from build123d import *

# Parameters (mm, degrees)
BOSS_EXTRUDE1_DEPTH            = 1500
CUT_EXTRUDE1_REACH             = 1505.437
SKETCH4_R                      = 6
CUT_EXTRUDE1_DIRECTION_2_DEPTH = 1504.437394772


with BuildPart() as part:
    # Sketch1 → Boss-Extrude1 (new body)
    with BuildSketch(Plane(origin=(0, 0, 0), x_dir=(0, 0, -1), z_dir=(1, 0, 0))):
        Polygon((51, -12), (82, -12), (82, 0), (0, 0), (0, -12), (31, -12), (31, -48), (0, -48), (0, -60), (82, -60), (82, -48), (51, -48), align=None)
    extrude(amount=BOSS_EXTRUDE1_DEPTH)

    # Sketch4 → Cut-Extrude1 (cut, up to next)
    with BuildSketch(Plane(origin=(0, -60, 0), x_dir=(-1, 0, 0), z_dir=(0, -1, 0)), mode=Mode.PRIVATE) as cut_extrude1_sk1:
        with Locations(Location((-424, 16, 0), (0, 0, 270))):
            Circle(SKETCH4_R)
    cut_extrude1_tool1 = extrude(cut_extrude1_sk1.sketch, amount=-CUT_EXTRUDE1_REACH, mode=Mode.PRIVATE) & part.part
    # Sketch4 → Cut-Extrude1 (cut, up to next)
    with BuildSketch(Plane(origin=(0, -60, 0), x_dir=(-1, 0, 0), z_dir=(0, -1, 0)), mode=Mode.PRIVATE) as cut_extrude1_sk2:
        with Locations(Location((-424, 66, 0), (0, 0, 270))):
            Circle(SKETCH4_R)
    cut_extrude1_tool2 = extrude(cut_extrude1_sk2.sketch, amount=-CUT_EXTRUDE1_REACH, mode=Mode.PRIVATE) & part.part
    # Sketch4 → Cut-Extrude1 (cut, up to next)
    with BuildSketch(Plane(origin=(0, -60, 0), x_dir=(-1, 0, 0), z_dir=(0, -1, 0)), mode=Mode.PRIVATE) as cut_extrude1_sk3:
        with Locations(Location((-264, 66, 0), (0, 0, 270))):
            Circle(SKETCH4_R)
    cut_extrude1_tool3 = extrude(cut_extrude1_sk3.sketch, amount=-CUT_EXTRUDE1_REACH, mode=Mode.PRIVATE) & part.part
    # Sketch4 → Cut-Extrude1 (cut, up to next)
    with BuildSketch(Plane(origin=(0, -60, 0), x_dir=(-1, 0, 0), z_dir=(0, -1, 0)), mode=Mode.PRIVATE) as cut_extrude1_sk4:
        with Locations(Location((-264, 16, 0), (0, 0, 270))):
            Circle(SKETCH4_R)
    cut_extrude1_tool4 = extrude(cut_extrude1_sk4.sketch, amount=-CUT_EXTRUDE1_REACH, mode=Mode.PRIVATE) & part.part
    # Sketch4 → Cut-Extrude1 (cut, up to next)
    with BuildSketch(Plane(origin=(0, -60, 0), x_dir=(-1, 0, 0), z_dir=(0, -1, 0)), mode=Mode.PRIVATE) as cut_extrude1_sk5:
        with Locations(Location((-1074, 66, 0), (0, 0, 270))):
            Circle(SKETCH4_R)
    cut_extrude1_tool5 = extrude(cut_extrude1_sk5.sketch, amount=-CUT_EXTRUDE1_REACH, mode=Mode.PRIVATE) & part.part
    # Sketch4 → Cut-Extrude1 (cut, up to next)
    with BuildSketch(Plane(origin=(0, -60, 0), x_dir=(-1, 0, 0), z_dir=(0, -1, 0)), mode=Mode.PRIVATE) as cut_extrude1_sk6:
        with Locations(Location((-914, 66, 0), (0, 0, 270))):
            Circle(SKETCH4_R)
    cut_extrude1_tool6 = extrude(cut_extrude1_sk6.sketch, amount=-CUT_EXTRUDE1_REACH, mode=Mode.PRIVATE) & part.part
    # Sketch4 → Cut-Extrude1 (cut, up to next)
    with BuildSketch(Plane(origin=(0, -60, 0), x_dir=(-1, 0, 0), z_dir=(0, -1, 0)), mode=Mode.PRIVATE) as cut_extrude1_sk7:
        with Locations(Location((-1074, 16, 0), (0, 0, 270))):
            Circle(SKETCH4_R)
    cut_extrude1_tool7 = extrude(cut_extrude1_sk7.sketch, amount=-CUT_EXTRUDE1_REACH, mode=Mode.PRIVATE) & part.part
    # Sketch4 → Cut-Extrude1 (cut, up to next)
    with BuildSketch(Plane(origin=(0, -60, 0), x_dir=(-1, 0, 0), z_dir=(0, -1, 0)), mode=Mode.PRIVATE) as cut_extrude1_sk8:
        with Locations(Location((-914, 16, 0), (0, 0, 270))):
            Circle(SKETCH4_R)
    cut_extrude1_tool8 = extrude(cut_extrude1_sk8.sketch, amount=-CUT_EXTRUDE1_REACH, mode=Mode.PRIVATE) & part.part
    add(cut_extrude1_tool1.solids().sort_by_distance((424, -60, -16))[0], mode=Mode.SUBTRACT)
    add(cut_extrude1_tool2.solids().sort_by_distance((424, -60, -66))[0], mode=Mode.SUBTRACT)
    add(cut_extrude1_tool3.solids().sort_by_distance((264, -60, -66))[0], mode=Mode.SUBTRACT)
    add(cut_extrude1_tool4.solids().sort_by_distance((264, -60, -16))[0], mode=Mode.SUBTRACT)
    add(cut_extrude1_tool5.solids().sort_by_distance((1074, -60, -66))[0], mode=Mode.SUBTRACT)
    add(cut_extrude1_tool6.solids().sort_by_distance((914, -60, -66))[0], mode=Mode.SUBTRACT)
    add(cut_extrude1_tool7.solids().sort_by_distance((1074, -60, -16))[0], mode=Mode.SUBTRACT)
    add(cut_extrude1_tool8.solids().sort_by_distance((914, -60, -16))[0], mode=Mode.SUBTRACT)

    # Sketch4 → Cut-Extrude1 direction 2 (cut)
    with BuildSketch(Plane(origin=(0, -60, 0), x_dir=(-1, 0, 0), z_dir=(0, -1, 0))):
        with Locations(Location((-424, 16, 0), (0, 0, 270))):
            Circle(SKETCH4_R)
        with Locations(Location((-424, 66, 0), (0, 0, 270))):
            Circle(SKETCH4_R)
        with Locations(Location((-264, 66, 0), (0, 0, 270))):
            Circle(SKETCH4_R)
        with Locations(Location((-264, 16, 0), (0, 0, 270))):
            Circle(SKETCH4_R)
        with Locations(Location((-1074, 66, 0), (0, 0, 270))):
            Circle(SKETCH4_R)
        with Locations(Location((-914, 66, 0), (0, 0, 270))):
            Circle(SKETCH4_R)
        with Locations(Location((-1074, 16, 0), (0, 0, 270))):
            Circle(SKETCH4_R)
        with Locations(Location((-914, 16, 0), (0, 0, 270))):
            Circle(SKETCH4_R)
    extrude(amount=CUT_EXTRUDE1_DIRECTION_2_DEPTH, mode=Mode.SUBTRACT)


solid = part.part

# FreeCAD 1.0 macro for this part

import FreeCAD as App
import Part
import Sketcher
from FreeCAD import Vector
Q = App.Units.Quantity

doc = App.newDocument("Part")
body = doc.addObject("PartDesign::Body", "Body")

sketch1 = body.newObject("Sketcher::SketchObject", "Sketch")
sketch1.AttachmentSupport = (doc.getObject("YZ_Plane"), [""])
sketch1.MapMode = "FlatFace"
sketch1.addGeometry([
    Part.LineSegment(Vector(-12, -51, 0), Vector(-12, -82, 0)),
    Part.LineSegment(Vector(-12, -82, 0), Vector(0, -82, 0)),
    Part.LineSegment(Vector(0, -82, 0), Vector(0, 0, 0)),
    Part.LineSegment(Vector(0, 0, 0), Vector(-12, 0, 0)),
    Part.LineSegment(Vector(-12, 0, 0), Vector(-12, -31, 0)),
    Part.LineSegment(Vector(-12, -31, 0), Vector(-48, -31, 0)),
    Part.LineSegment(Vector(-48, -31, 0), Vector(-48, 0, 0)),
    Part.LineSegment(Vector(-48, 0, 0), Vector(-60, 0, 0)),
    Part.LineSegment(Vector(-60, 0, 0), Vector(-60, -82, 0)),
    Part.LineSegment(Vector(-60, -82, 0), Vector(-48, -82, 0)),
    Part.LineSegment(Vector(-48, -82, 0), Vector(-48, -51, 0)),
    Part.LineSegment(Vector(-48, -51, 0), Vector(-12, -51, 0)),
], False)
sketch1.addConstraint([
    Sketcher.Constraint("Coincident", 0, 2, 1, 1),
    Sketcher.Constraint("Coincident", 1, 2, 2, 1),
    Sketcher.Constraint("Coincident", 2, 2, 3, 1),
    Sketcher.Constraint("Coincident", 3, 2, 4, 1),
    Sketcher.Constraint("Coincident", 4, 2, 5, 1),
    Sketcher.Constraint("Coincident", 5, 2, 6, 1),
    Sketcher.Constraint("Coincident", 6, 2, 7, 1),
    Sketcher.Constraint("Coincident", 7, 2, 8, 1),
    Sketcher.Constraint("Coincident", 8, 2, 9, 1),
    Sketcher.Constraint("Coincident", 9, 2, 10, 1),
    Sketcher.Constraint("Coincident", 10, 2, 11, 1),
    Sketcher.Constraint("Coincident", 11, 2, 0, 1),
    Sketcher.Constraint("Vertical", 0),
    Sketcher.Constraint("Horizontal", 1),
    Sketcher.Constraint("Vertical", 2),
    Sketcher.Constraint("Horizontal", 3),
    Sketcher.Constraint("Vertical", 4),
    Sketcher.Constraint("Horizontal", 5),
    Sketcher.Constraint("Vertical", 6),
    Sketcher.Constraint("Horizontal", 7),
    Sketcher.Constraint("Vertical", 8),
    Sketcher.Constraint("Horizontal", 9),
    Sketcher.Constraint("Vertical", 10),
    Sketcher.Constraint("Horizontal", 11),
    Sketcher.Constraint("Coincident", 2, 2, -1, 1),
    Sketcher.Constraint("PointOnObject", 6, 2, -1),
    Sketcher.Constraint("Horizontal", 1, 2, 8, 2),
    Sketcher.Constraint("Vertical", 0, 2, 3, 2),
    Sketcher.Constraint("Vertical", 6, 2, 9, 2),
    Sketcher.Constraint("Equal", 3, 7),
    Sketcher.Constraint("Equal", 0, 4),
    Sketcher.Constraint("DistanceX", 1, 1, 1, 2, Q("12 mm")),
    Sketcher.Constraint("DistanceX", 5, 2, 5, 1, Q("36 mm")),
    Sketcher.Constraint("DistanceY", 0, 2, 0, 1, Q("31 mm")),
    Sketcher.Constraint("DistanceY", 2, 1, 2, 2, Q("82 mm")),
])
pad1 = body.newObject("PartDesign::Pad", "Pad")
pad1.Profile = sketch1
pad1.Length = 1500

sketch2 = body.newObject("Sketcher::SketchObject", "Sketch001")
sketch2.AttachmentSupport = (doc.getObject("XZ_Plane"), [""])
sketch2.MapMode = "FlatFace"
sketch2.AttachmentOffset = App.Placement(Vector(0, 0, 60), App.Rotation())
sketch2.addGeometry(Part.Circle(Vector(424, -16, 0), Vector(0, 0, 1), 6), False)
sketch2.addConstraint([
    Sketcher.Constraint("Diameter", 0, Q("12 mm")),
    Sketcher.Constraint("DistanceX", -1, 1, 0, 3, Q("424 mm")),
    Sketcher.Constraint("DistanceY", 0, 3, -1, 1, Q("16 mm")),
])
pocket1 = body.newObject("PartDesign::Pocket", "Pocket")
pocket1.Profile = sketch2
pocket1.Type = "UpToFirst"

sketch3 = body.newObject("Sketcher::SketchObject", "Sketch002")
sketch3.AttachmentSupport = (doc.getObject("XZ_Plane"), [""])
sketch3.MapMode = "FlatFace"
sketch3.AttachmentOffset = App.Placement(Vector(0, 0, 60), App.Rotation())
sketch3.addGeometry(Part.Circle(Vector(424, -66, 0), Vector(0, 0, 1), 6), False)
sketch3.addConstraint([
    Sketcher.Constraint("Diameter", 0, Q("12 mm")),
    Sketcher.Constraint("DistanceX", -1, 1, 0, 3, Q("424 mm")),
    Sketcher.Constraint("DistanceY", 0, 3, -1, 1, Q("66 mm")),
])
pocket2 = body.newObject("PartDesign::Pocket", "Pocket001")
pocket2.Profile = sketch3
pocket2.Type = "UpToFirst"

sketch4 = body.newObject("Sketcher::SketchObject", "Sketch003")
sketch4.AttachmentSupport = (doc.getObject("XZ_Plane"), [""])
sketch4.MapMode = "FlatFace"
sketch4.AttachmentOffset = App.Placement(Vector(0, 0, 60), App.Rotation())
sketch4.addGeometry(Part.Circle(Vector(264, -66, 0), Vector(0, 0, 1), 6), False)
sketch4.addConstraint([
    Sketcher.Constraint("Diameter", 0, Q("12 mm")),
    Sketcher.Constraint("DistanceX", -1, 1, 0, 3, Q("264 mm")),
    Sketcher.Constraint("DistanceY", 0, 3, -1, 1, Q("66 mm")),
])
pocket3 = body.newObject("PartDesign::Pocket", "Pocket002")
pocket3.Profile = sketch4
pocket3.Type = "UpToFirst"

sketch5 = body.newObject("Sketcher::SketchObject", "Sketch004")
sketch5.AttachmentSupport = (doc.getObject("XZ_Plane"), [""])
sketch5.MapMode = "FlatFace"
sketch5.AttachmentOffset = App.Placement(Vector(0, 0, 60), App.Rotation())
sketch5.addGeometry(Part.Circle(Vector(264, -16, 0), Vector(0, 0, 1), 6), False)
sketch5.addConstraint([
    Sketcher.Constraint("Diameter", 0, Q("12 mm")),
    Sketcher.Constraint("DistanceX", -1, 1, 0, 3, Q("264 mm")),
    Sketcher.Constraint("DistanceY", 0, 3, -1, 1, Q("16 mm")),
])
pocket4 = body.newObject("PartDesign::Pocket", "Pocket003")
pocket4.Profile = sketch5
pocket4.Type = "UpToFirst"

sketch6 = body.newObject("Sketcher::SketchObject", "Sketch005")
sketch6.AttachmentSupport = (doc.getObject("XZ_Plane"), [""])
sketch6.MapMode = "FlatFace"
sketch6.AttachmentOffset = App.Placement(Vector(0, 0, 60), App.Rotation())
sketch6.addGeometry(Part.Circle(Vector(1074, -66, 0), Vector(0, 0, 1), 6), False)
sketch6.addConstraint([
    Sketcher.Constraint("Diameter", 0, Q("12 mm")),
    Sketcher.Constraint("DistanceX", -1, 1, 0, 3, Q("1074 mm")),
    Sketcher.Constraint("DistanceY", 0, 3, -1, 1, Q("66 mm")),
])
pocket5 = body.newObject("PartDesign::Pocket", "Pocket004")
pocket5.Profile = sketch6
pocket5.Type = "UpToFirst"

sketch7 = body.newObject("Sketcher::SketchObject", "Sketch006")
sketch7.AttachmentSupport = (doc.getObject("XZ_Plane"), [""])
sketch7.MapMode = "FlatFace"
sketch7.AttachmentOffset = App.Placement(Vector(0, 0, 60), App.Rotation())
sketch7.addGeometry(Part.Circle(Vector(914, -66, 0), Vector(0, 0, 1), 6), False)
sketch7.addConstraint([
    Sketcher.Constraint("Diameter", 0, Q("12 mm")),
    Sketcher.Constraint("DistanceX", -1, 1, 0, 3, Q("914 mm")),
    Sketcher.Constraint("DistanceY", 0, 3, -1, 1, Q("66 mm")),
])
pocket6 = body.newObject("PartDesign::Pocket", "Pocket005")
pocket6.Profile = sketch7
pocket6.Type = "UpToFirst"

sketch8 = body.newObject("Sketcher::SketchObject", "Sketch007")
sketch8.AttachmentSupport = (doc.getObject("XZ_Plane"), [""])
sketch8.MapMode = "FlatFace"
sketch8.AttachmentOffset = App.Placement(Vector(0, 0, 60), App.Rotation())
sketch8.addGeometry(Part.Circle(Vector(1074, -16, 0), Vector(0, 0, 1), 6), False)
sketch8.addConstraint([
    Sketcher.Constraint("Diameter", 0, Q("12 mm")),
    Sketcher.Constraint("DistanceX", -1, 1, 0, 3, Q("1074 mm")),
    Sketcher.Constraint("DistanceY", 0, 3, -1, 1, Q("16 mm")),
])
pocket7 = body.newObject("PartDesign::Pocket", "Pocket006")
pocket7.Profile = sketch8
pocket7.Type = "UpToFirst"

sketch9 = body.newObject("Sketcher::SketchObject", "Sketch008")
sketch9.AttachmentSupport = (doc.getObject("XZ_Plane"), [""])
sketch9.MapMode = "FlatFace"
sketch9.AttachmentOffset = App.Placement(Vector(0, 0, 60), App.Rotation())
sketch9.addGeometry(Part.Circle(Vector(914, -16, 0), Vector(0, 0, 1), 6), False)
sketch9.addConstraint([
    Sketcher.Constraint("Diameter", 0, Q("12 mm")),
    Sketcher.Constraint("DistanceX", -1, 1, 0, 3, Q("914 mm")),
    Sketcher.Constraint("DistanceY", 0, 3, -1, 1, Q("16 mm")),
])
pocket8 = body.newObject("PartDesign::Pocket", "Pocket007")
pocket8.Profile = sketch9
pocket8.Type = "UpToFirst"

sketch10 = body.newObject("Sketcher::SketchObject", "Sketch009")
sketch10.AttachmentSupport = (doc.getObject("XZ_Plane"), [""])
sketch10.MapMode = "FlatFace"
sketch10.AttachmentOffset = App.Placement(Vector(0, 0, 60), App.Rotation())
sketch10.addGeometry([
    Part.Circle(Vector(424, -16, 0), Vector(0, 0, 1), 6),
    Part.Circle(Vector(424, -66, 0), Vector(0, 0, 1), 6),
    Part.Circle(Vector(264, -66, 0), Vector(0, 0, 1), 6),
    Part.Circle(Vector(264, -16, 0), Vector(0, 0, 1), 6),
    Part.Circle(Vector(1074, -66, 0), Vector(0, 0, 1), 6),
    Part.Circle(Vector(914, -66, 0), Vector(0, 0, 1), 6),
    Part.Circle(Vector(1074, -16, 0), Vector(0, 0, 1), 6),
    Part.Circle(Vector(914, -16, 0), Vector(0, 0, 1), 6),
], False)
sketch10.addConstraint([
    Sketcher.Constraint("Equal", 0, 1),
    Sketcher.Constraint("Equal", 1, 2),
    Sketcher.Constraint("Equal", 2, 3),
    Sketcher.Constraint("Equal", 3, 4),
    Sketcher.Constraint("Equal", 4, 5),
    Sketcher.Constraint("Equal", 5, 6),
    Sketcher.Constraint("Equal", 6, 7),
    Sketcher.Constraint("Horizontal", 1, 3, 2, 3),
    Sketcher.Constraint("Horizontal", 0, 3, 3, 3),
    Sketcher.Constraint("Horizontal", 2, 3, 4, 3),
    Sketcher.Constraint("Horizontal", 4, 3, 5, 3),
    Sketcher.Constraint("Horizontal", 3, 3, 6, 3),
    Sketcher.Constraint("Horizontal", 6, 3, 7, 3),
    Sketcher.Constraint("Vertical", 0, 3, 1, 3),
    Sketcher.Constraint("Vertical", 2, 3, 3, 3),
    Sketcher.Constraint("Vertical", 4, 3, 6, 3),
    Sketcher.Constraint("Vertical", 5, 3, 7, 3),
    Sketcher.Constraint("Diameter", 0, Q("12 mm")),
    Sketcher.Constraint("DistanceX", -1, 1, 0, 3, Q("424 mm")),
    Sketcher.Constraint("DistanceY", 0, 3, -1, 1, Q("16 mm")),
    Sketcher.Constraint("DistanceY", 1, 3, -1, 1, Q("66 mm")),
    Sketcher.Constraint("DistanceX", -1, 1, 2, 3, Q("264 mm")),
    Sketcher.Constraint("DistanceX", -1, 1, 4, 3, Q("1074 mm")),
    Sketcher.Constraint("DistanceX", -1, 1, 5, 3, Q("914 mm")),
])
pocket9 = body.newObject("PartDesign::Pocket", "Pocket008")
pocket9.Profile = sketch10
pocket9.Length = 1504.437395
pocket9.Reversed = True

doc.recompute()
